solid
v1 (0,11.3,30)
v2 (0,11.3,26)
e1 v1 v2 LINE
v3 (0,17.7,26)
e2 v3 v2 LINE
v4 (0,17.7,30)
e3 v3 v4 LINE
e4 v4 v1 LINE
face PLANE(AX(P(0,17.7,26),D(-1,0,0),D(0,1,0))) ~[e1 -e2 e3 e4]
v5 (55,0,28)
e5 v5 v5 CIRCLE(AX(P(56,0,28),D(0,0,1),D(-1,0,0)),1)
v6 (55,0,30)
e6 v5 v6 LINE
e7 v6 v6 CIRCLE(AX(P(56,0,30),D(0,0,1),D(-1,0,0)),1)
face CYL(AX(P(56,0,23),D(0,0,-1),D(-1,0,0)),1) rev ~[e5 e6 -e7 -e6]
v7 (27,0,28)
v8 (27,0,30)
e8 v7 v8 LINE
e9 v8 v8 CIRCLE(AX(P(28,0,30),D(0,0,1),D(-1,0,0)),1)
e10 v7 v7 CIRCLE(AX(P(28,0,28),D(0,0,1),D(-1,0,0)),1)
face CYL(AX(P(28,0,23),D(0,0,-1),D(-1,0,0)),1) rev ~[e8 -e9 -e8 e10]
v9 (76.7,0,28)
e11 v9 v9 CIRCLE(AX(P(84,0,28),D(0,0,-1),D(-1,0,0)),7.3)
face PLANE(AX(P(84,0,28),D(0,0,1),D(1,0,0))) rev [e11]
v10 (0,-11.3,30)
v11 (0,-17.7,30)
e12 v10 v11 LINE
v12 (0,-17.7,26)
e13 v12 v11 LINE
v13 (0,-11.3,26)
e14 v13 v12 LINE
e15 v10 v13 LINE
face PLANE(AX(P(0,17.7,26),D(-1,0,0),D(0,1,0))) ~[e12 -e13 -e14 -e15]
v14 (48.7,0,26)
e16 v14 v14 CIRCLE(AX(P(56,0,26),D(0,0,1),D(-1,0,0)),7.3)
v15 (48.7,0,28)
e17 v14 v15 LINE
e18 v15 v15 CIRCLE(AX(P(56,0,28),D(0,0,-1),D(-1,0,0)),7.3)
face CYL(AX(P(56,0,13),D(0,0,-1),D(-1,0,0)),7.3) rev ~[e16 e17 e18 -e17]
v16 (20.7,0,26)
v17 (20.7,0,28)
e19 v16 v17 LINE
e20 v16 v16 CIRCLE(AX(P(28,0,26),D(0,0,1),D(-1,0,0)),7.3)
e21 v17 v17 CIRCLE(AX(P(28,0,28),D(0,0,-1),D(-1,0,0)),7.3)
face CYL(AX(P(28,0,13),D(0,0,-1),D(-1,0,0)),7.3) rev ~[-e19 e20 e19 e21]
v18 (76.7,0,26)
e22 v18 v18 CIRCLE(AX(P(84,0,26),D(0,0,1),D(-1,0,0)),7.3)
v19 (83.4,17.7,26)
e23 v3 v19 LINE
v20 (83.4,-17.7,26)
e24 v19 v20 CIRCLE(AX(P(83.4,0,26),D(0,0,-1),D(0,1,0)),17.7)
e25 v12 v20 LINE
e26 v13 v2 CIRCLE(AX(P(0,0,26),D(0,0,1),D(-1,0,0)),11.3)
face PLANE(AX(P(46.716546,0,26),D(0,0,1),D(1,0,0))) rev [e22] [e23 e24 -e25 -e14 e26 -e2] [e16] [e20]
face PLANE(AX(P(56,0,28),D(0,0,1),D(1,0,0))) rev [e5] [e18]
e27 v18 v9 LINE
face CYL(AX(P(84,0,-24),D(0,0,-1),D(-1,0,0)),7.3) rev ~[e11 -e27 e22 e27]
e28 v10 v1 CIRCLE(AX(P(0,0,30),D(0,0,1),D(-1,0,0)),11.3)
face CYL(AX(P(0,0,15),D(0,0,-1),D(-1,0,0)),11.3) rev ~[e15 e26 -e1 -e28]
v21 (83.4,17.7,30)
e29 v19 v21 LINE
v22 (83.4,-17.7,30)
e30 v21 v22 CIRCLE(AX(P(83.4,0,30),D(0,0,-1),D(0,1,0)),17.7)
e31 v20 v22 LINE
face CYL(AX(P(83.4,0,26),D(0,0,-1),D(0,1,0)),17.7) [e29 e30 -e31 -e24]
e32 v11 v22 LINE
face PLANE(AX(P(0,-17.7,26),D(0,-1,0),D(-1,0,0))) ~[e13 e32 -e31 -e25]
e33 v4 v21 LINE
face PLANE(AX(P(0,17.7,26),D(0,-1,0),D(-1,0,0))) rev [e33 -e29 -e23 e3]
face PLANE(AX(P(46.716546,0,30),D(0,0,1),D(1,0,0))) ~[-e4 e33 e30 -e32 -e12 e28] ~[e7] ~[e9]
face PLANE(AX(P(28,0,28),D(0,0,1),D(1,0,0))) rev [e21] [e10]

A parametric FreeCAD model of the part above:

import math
import FreeCAD as App
import Part
import Sketcher

V = App.Vector
Q = App.Units.Quantity

doc = App.newDocument("Part")
params = doc.addObject("Spreadsheet::Sheet", "Params")
for row, (alias, value) in enumerate([
    ("sketch1_diameter", "2 mm"),
    ("pad1_length", "10 mm"),
    ("sketch2_diameter", "2 mm"),
    ("pad2_length", "10 mm"),
    ("sketch3_diameter", "22.6 mm"),
    ("pad3_length", "16 mm"),
    ("sketch4_diameter", "14.6 mm"),
    ("pad4_length", "15 mm"),
    ("sketch5_diameter", "14.6 mm"),
    ("pad5_length", "15 mm"),
    ("sketch6_diameter", "14.6 mm"),
    ("pad6_length", "52 mm"),
    ("sketch7_radius", "17.7 mm"),
    ("sketch7_width", "83.4 mm"),
    ("pad7_length", "4 mm"),
], start=1):
    params.set(f"A{row}", alias)
    params.set(f"B{row}", "=" + value)
    params.setAlias(f"B{row}", alias)

body = doc.addObject("PartDesign::Body", "Body")

# Sketch on XY plane
sketch1 = body.newObject("Sketcher::SketchObject", "Sketch")
sketch1.AttachmentSupport = (doc.getObject("XY_Plane"), [""])
sketch1.MapMode = "FlatFace"
sketch1.AttachmentOffset = App.Placement(V(0, 0, -4), App.Rotation())
sketch1.addGeometry(Part.Circle(V(-28, 0, 0), V(0, 0, 1), 1), False)
sketch1.addConstraint([
    Sketcher.Constraint("PointOnObject", 0, 3, -1),
    Sketcher.Constraint("Diameter", 0, Q("2 mm")),
    Sketcher.Constraint("DistanceX", 0, 3, -1, 1, Q("28 mm")),
])
sketch1.setExpression("Constraints[1]", "Params.sketch1_diameter")
pad1 = body.newObject("PartDesign::Pad", "Pad")
pad1.Profile = sketch1
pad1.setExpression("Length", "Params.pad1_length")
body2 = doc.addObject("PartDesign::Body", "Body001")
body2.AllowCompound = True

# Sketch on XY plane
sketch2 = body2.newObject("Sketcher::SketchObject", "Sketch001")
sketch2.AttachmentSupport = (doc.getObject("XY_Plane001"), [""])
sketch2.MapMode = "FlatFace"
sketch2.AttachmentOffset = App.Placement(V(0, 0, -4), App.Rotation())
sketch2.addGeometry(Part.Circle(V(-56, 0, 0), V(0, 0, 1), 1), False)
sketch2.addConstraint([
    Sketcher.Constraint("PointOnObject", 0, 3, -1),
    Sketcher.Constraint("Diameter", 0, Q("2 mm")),
    Sketcher.Constraint("DistanceX", 0, 3, -1, 1, Q("56 mm")),
])
sketch2.setExpression("Constraints[1]", "Params.sketch2_diameter")
pad2 = body2.newObject("PartDesign::Pad", "Pad001")
pad2.Profile = sketch2
pad2.setExpression("Length", "Params.pad2_length")
doc.recompute()

boolean = body2.newObject("PartDesign::Boolean", "Boolean")
boolean.Type = "Fuse"
boolean.addObjects([body])
body3 = doc.addObject("PartDesign::Body", "Body002")
body3.AllowCompound = True
doc.recompute()

body2.Placement = App.Placement(V(0, 0, 27), App.Rotation(V(0, 0, 1), 0))
boolean2 = body3.newObject("PartDesign::Boolean", "Boolean001")
boolean2.Type = "Fuse"
boolean2.addObjects([body2])
body4 = doc.addObject("PartDesign::Body", "Body003")

# Sketch on XY plane
sketch3 = body4.newObject("Sketcher::SketchObject", "Sketch002")
sketch3.AttachmentSupport = (doc.getObject("XY_Plane003"), [""])
sketch3.MapMode = "FlatFace"
sketch3.AttachmentOffset = App.Placement(V(0, 0, 15), App.Rotation())
sketch3.addGeometry(Part.Circle(V(0, 0, 0), V(0, 0, 1), 11), False)
sketch3.addConstraint([
    Sketcher.Constraint("Coincident", 0, 3, -1, 1),
    Sketcher.Constraint("Diameter", 0, Q("22.6 mm")),
])
sketch3.setExpression("Constraints[1]", "Params.sketch3_diameter")
pad3 = body4.newObject("PartDesign::Pad", "Pad002")
pad3.Profile = sketch3
pad3.setExpression("Length", "Params.pad3_length")
body5 = doc.addObject("PartDesign::Body", "Body004")

# Sketch on XY plane
sketch4 = body5.newObject("Sketcher::SketchObject", "Sketch003")
sketch4.AttachmentSupport = (doc.getObject("XY_Plane004"), [""])
sketch4.MapMode = "FlatFace"
sketch4.AttachmentOffset = App.Placement(V(0, 0, 13), App.Rotation())
sketch4.addGeometry(Part.Circle(V(-28, 0, 0), V(0, 0, 1), 7), False)
sketch4.addConstraint([
    Sketcher.Constraint("PointOnObject", 0, 3, -1),
    Sketcher.Constraint("Diameter", 0, Q("14.6 mm")),
    Sketcher.Constraint("DistanceX", 0, 3, -1, 1, Q("28 mm")),
])
sketch4.setExpression("Constraints[1]", "Params.sketch4_diameter")
pad4 = body5.newObject("PartDesign::Pad", "Pad003")
pad4.Profile = sketch4
pad4.setExpression("Length", "Params.pad4_length")
body6 = doc.addObject("PartDesign::Body", "Body005")
body6.AllowCompound = True

# Sketch on XY plane
sketch5 = body6.newObject("Sketcher::SketchObject", "Sketch004")
sketch5.AttachmentSupport = (doc.getObject("XY_Plane005"), [""])
sketch5.MapMode = "FlatFace"
sketch5.AttachmentOffset = App.Placement(V(0, 0, 13), App.Rotation())
sketch5.addGeometry(Part.Circle(V(-56, 0, 0), V(0, 0, 1), 7), False)
sketch5.addConstraint([
    Sketcher.Constraint("PointOnObject", 0, 3, -1),
    Sketcher.Constraint("Diameter", 0, Q("14.6 mm")),
    Sketcher.Constraint("DistanceX", 0, 3, -1, 1, Q("56 mm")),
])
sketch5.setExpression("Constraints[1]", "Params.sketch5_diameter")
pad5 = body6.newObject("PartDesign::Pad", "Pad004")
pad5.Profile = sketch5
pad5.setExpression("Length", "Params.pad5_length")
doc.recompute()

boolean3 = body6.newObject("PartDesign::Boolean", "Boolean002")
boolean3.Type = "Fuse"
boolean3.addObjects([body5])
body7 = doc.addObject("PartDesign::Body", "Body006")

# Sketch on XY plane
sketch6 = body7.newObject("Sketcher::SketchObject", "Sketch005")
sketch6.AttachmentSupport = (doc.getObject("XY_Plane006"), [""])
sketch6.MapMode = "FlatFace"
sketch6.AttachmentOffset = App.Placement(V(0, 0, -24), App.Rotation())
sketch6.addGeometry(Part.Circle(V(-84, 0, 0), V(0, 0, 1), 7), False)
sketch6.addConstraint([
    Sketcher.Constraint("PointOnObject", 0, 3, -1),
    Sketcher.Constraint("Diameter", 0, Q("14.6 mm")),
    Sketcher.Constraint("DistanceX", 0, 3, -1, 1, Q("84 mm")),
])
sketch6.setExpression("Constraints[1]", "Params.sketch6_diameter")
pad6 = body7.newObject("PartDesign::Pad", "Pad005")
pad6.Profile = sketch6
pad6.setExpression("Length", "Params.pad6_length")
body8 = doc.addObject("PartDesign::Body", "Body007")

# Sketch on XY plane
sketch7 = body8.newObject("Sketcher::SketchObject", "Sketch006")
sketch7.AttachmentSupport = (doc.getObject("XY_Plane007"), [""])
sketch7.MapMode = "FlatFace"
sketch7.addGeometry([
    Part.LineSegment(V(0, 18, 0), V(-83, 18, 0)),
    Part.ArcOfCircle(Part.Circle(V(-83, 0, 0), V(0, 0, 1), 18), math.radians(90), math.radians(270)),
    Part.LineSegment(V(-83, -18, 0), V(0, -18, 0)),
    Part.LineSegment(V(0, -18, 0), V(0, 18, 0)),
], False)
sketch7.addConstraint([
    Sketcher.Constraint("Tangent", 0, 2, 1, 1),
    Sketcher.Constraint("Tangent", 1, 2, 2, 1),
    Sketcher.Constraint("Coincident", 2, 2, 3, 1),
    Sketcher.Constraint("Coincident", 3, 2, 0, 1),
    Sketcher.Constraint("Horizontal", 0),
    Sketcher.Constraint("Horizontal", 2),
    Sketcher.Constraint("Vertical", 3),
    Sketcher.Constraint("Symmetric", 2, 2, 3, 2, -1, 1),
    Sketcher.Constraint("Radius", 1, Q("17.7 mm")),
    Sketcher.Constraint("DistanceX", 0, 2, 0, 1, Q("83.4 mm")),
])
sketch7.setExpression("Constraints[8]", "Params.sketch7_radius")
sketch7.setExpression("Constraints[9]", "Params.sketch7_width")
pad7 = body8.newObject("PartDesign::Pad", "Pad006")
pad7.Profile = sketch7
pad7.setExpression("Length", "Params.pad7_length")
body9 = doc.addObject("PartDesign::Body", "Body008")
doc.recompute()

body8.Placement = App.Placement(V(0, 0, 26), App.Rotation(V(0, 0, 1), 0))
boolean4 = body9.newObject("PartDesign::Boolean", "Boolean003")
boolean4.Type = "Fuse"
boolean4.addObjects([body8])
doc.recompute()

boolean5 = body9.newObject("PartDesign::Boolean", "Boolean004")
boolean5.Type = "Cut"
boolean5.addObjects([body7])
doc.recompute()

boolean6 = body9.newObject("PartDesign::Boolean", "Boolean005")
boolean6.Type = "Cut"
boolean6.addObjects([body6])
doc.recompute()

boolean7 = body9.newObject("PartDesign::Boolean", "Boolean006")
boolean7.Type = "Cut"
boolean7.addObjects([body4])
doc.recompute()

boolean8 = body9.newObject("PartDesign::Boolean", "Boolean007")
boolean8.Type = "Cut"
boolean8.addObjects([body3])
body10 = doc.addObject("PartDesign::Body", "Body009")
doc.recompute()

mirroring = doc.addObject("Part::Mirroring", "Mirroring")
mirroring.Source = body9
mirroring.Base = V(0, 0, 0)
mirroring.Normal = V(1, 0, 0)
body10.BaseFeature = mirroring
doc.recompute()
body9.Visibility = False
mirroring.Visibility = False

doc.recompute()
